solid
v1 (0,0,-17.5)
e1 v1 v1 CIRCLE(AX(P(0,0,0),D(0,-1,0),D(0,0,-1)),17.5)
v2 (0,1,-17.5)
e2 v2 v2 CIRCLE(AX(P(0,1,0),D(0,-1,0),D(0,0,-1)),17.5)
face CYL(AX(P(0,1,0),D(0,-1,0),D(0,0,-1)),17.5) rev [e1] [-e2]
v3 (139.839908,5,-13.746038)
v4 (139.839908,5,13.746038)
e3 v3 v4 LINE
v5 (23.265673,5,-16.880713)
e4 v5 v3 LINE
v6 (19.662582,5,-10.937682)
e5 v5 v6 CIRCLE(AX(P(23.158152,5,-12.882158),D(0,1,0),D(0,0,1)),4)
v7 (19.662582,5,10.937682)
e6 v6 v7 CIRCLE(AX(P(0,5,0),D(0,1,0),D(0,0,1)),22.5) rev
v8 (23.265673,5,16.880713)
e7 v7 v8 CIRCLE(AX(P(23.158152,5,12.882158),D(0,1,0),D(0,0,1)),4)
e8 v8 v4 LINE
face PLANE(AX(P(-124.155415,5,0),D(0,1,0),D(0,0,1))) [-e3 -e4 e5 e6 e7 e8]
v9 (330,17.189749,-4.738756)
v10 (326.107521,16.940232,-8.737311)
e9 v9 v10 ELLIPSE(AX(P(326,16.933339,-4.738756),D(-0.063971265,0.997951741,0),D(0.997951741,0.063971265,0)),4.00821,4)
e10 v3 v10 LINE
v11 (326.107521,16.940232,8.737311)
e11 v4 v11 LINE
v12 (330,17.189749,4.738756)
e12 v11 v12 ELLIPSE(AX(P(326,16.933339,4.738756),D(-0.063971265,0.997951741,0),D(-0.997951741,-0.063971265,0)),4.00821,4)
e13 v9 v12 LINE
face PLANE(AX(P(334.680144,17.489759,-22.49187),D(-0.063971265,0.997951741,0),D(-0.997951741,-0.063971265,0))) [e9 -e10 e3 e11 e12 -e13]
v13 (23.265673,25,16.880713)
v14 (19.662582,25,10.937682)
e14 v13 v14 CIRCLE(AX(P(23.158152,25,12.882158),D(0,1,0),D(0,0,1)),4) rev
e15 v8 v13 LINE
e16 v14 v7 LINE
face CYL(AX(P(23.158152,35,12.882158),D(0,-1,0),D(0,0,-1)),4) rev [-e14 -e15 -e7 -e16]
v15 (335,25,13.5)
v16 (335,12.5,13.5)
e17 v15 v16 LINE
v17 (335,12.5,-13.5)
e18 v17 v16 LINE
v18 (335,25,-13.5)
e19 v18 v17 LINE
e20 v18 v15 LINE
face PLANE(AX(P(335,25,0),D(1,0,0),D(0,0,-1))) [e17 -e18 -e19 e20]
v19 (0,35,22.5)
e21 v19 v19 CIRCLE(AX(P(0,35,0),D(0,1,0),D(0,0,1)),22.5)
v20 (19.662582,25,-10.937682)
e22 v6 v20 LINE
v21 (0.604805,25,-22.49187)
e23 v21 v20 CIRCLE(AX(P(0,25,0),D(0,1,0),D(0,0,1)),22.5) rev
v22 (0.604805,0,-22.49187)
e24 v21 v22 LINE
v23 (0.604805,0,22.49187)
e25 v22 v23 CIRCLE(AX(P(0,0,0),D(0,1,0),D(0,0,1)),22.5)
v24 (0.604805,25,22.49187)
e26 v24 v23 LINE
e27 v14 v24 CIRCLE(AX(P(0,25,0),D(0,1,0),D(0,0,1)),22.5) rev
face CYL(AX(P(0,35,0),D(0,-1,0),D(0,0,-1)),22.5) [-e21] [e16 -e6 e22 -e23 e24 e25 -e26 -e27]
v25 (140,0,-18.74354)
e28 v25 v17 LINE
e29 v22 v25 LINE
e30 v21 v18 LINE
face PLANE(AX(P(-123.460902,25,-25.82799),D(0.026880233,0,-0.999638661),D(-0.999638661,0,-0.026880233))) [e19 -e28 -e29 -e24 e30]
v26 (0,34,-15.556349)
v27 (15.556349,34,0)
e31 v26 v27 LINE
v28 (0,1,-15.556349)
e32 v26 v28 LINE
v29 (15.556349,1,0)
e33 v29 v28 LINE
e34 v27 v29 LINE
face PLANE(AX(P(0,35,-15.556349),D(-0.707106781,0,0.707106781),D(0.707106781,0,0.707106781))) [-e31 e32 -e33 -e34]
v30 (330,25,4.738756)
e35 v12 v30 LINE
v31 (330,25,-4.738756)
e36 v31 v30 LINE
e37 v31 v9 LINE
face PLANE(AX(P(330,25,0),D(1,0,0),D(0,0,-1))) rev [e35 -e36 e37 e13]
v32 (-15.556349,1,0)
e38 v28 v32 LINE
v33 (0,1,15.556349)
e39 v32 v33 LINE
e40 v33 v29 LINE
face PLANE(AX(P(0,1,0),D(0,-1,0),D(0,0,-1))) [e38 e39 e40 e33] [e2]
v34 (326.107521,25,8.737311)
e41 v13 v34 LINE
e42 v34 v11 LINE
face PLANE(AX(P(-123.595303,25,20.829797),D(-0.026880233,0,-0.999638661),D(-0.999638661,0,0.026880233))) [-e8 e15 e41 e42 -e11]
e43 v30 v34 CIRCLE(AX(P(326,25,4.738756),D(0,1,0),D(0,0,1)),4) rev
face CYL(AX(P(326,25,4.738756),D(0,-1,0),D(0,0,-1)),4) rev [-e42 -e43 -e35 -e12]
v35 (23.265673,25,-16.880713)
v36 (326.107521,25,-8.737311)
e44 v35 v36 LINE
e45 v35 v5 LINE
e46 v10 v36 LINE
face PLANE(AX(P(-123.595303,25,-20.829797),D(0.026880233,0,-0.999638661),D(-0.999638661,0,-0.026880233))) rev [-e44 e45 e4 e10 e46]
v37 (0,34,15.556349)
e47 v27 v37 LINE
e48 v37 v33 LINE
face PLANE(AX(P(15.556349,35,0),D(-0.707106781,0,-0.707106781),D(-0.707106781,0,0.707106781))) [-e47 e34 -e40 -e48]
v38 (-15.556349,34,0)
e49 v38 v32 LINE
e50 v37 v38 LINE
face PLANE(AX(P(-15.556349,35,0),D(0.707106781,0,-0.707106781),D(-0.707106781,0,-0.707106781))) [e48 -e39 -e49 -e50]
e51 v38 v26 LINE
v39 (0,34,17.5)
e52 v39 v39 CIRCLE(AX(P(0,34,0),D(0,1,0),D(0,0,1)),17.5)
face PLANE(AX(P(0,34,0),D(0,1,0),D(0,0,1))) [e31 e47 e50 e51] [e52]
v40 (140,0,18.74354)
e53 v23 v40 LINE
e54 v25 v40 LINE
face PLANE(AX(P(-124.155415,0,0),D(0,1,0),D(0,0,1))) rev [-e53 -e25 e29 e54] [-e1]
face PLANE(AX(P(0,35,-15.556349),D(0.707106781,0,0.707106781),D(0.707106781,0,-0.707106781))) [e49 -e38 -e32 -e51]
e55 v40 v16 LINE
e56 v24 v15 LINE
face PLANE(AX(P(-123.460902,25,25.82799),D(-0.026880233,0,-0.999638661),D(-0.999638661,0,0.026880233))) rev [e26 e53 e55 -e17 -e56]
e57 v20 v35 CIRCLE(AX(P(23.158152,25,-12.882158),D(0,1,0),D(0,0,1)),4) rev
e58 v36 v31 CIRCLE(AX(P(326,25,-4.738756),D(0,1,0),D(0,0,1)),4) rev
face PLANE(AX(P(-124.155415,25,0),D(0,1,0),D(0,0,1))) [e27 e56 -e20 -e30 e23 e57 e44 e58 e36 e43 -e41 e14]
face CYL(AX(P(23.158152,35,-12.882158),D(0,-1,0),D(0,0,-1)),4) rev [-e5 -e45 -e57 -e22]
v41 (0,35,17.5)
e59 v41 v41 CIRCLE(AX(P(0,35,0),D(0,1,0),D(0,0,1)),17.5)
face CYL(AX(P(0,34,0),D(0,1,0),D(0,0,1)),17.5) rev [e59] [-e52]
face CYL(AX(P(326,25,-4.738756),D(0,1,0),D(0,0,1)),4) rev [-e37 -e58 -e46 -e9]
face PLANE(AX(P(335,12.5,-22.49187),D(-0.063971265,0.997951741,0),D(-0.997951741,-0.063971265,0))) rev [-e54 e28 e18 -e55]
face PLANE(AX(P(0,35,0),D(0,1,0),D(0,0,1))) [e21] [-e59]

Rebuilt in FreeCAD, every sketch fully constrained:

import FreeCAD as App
import Part
import Sketcher


def edges_at(feature, points):
    """Names of the edges that pass closest to the given points."""
    edges = feature.Shape.Edges
    near = lambda p: min(range(len(edges)), key=lambda i: edges[i].distToShape(Part.Vertex(*p))[0])
    return sorted({f"Edge{near(p) + 1}" for p in points})


def faces_at(feature, points):
    """Names of the faces that lie closest to the given points."""
    faces = feature.Shape.Faces
    near = lambda p: min(range(len(faces)), key=lambda i: faces[i].distToShape(Part.Vertex(*p))[0])
    return sorted({f"Face{near(p) + 1}" for p in points})

doc = App.newDocument("Part")
params = doc.addObject("Spreadsheet::Sheet", "Params")
for row, (alias, value) in enumerate([
    ("sketch1_height", "27 mm"),
    ("pad1_length", "25 mm"),
    ("thickness_wall", "5 mm"),
    ("sketch3_diameter", "45 mm"),
    ("pad2_length", "35 mm"),
    ("sketch4_diameter", "35 mm"),
    ("pocket2_length", "1 mm"),
    ("sketch5_diameter", "35 mm"),
    ("pocket3_length", "1 mm"),
    ("sketch6_length", "22 mm"),
    ("fillet_radius", "4 mm"),
], start=1):
    params.set(f"A{row}", alias)
    params.set(f"B{row}", "=" + value)
    params.setAlias(f"B{row}", alias)

body = doc.addObject("PartDesign::Body", "Body")

sketch1 = body.newObject("Sketcher::SketchObject", "Sketch")
sketch1.AttachmentSupport = (doc.getObject("XZ_Plane"), [""])
sketch1.MapMode = "FlatFace"
sketch1.addGeometry(Part.LineSegment(App.Vector(335, -13.5, 0), App.Vector(0.604805, -22.49187, 0)), False)
sketch1.addGeometry(Part.LineSegment(App.Vector(0.604805, -22.49187, 0), App.Vector(0.604805, 22.49187, 0)), False)
sketch1.addGeometry(Part.LineSegment(App.Vector(0.604805, 22.49187, 0), App.Vector(335, 13.5, 0)), False)
sketch1.addGeometry(Part.LineSegment(App.Vector(335, 13.5, 0), App.Vector(335, -13.5, 0)), False)
sketch1.addConstraint(Sketcher.Constraint("Coincident", 0, 2, 1, 1))
sketch1.addConstraint(Sketcher.Constraint("Coincident", 1, 2, 2, 1))
sketch1.addConstraint(Sketcher.Constraint("Coincident", 2, 2, 3, 1))
sketch1.addConstraint(Sketcher.Constraint("Coincident", 3, 2, 0, 1))
sketch1.addConstraint(Sketcher.Constraint("Vertical", 1))
sketch1.addConstraint(Sketcher.Constraint("Vertical", 3))
sketch1.addConstraint(Sketcher.Constraint("Equal", 0, 2))
sketch1.addConstraint(Sketcher.Constraint("DistanceY", 3, 2, 3, 1, 27.0))
sketch1.addConstraint(Sketcher.Constraint("DistanceX", -1, 1, 2, 2, 335.0))
sketch1.addConstraint(Sketcher.Constraint("DistanceY", -1, 1, 2, 2, 13.5))
sketch1.addConstraint(Sketcher.Constraint("DistanceY", 1, 1, 1, 2, 44.98374))
sketch1.addConstraint(Sketcher.Constraint("Distance", 0, 334.516068))
sketch1.setExpression("Constraints[7]", "Params.sketch1_height")
pad1 = body.newObject("PartDesign::Pad", "Pad")
pad1.Profile = sketch1
pad1.setExpression("Length", "Params.pad1_length")
pad1.Reversed = True

sketch2 = body.newObject("Sketcher::SketchObject", "Sketch001")
sketch2.AttachmentSupport = (doc.getObject("XY_Plane"), [""])
sketch2.MapMode = "FlatFace"
sketch2.addGeometry(Part.LineSegment(App.Vector(335, 12.5, 0), App.Vector(140, 0, 0)), False)
sketch2.addGeometry(Part.LineSegment(App.Vector(140, 0, 0), App.Vector(140, -74.146668, 0)), False)
sketch2.addGeometry(Part.LineSegment(App.Vector(140, -74.146668, 0), App.Vector(362.466185, -74.146668, 0)), False)
sketch2.addGeometry(Part.LineSegment(App.Vector(362.466185, -74.146668, 0), App.Vector(356.911911, 12.5, 0)), False)
sketch2.addGeometry(Part.LineSegment(App.Vector(356.911911, 12.5, 0), App.Vector(335, 12.5, 0)), False)
sketch2.addConstraint(Sketcher.Constraint("Coincident", 0, 2, 1, 1))
sketch2.addConstraint(Sketcher.Constraint("Coincident", 1, 2, 2, 1))
sketch2.addConstraint(Sketcher.Constraint("Coincident", 2, 2, 3, 1))
sketch2.addConstraint(Sketcher.Constraint("Coincident", 3, 2, 4, 1))
sketch2.addConstraint(Sketcher.Constraint("Coincident", 4, 2, 0, 1))
sketch2.addConstraint(Sketcher.Constraint("Vertical", 1))
sketch2.addConstraint(Sketcher.Constraint("Horizontal", 2))
sketch2.addConstraint(Sketcher.Constraint("Horizontal", 4))
sketch2.addConstraint(Sketcher.Constraint("PointOnObject", 0, 2, -1))
sketch2.addConstraint(Sketcher.Constraint("Perpendicular", 0, 3))
sketch2.addConstraint(Sketcher.Constraint("DistanceX", -1, 1, 0, 2, 140.0))
sketch2.addConstraint(Sketcher.Constraint("DistanceX", -1, 1, 4, 2, 335.0))
sketch2.addConstraint(Sketcher.Constraint("DistanceY", -1, 1, 3, 2, 12.5))
sketch2.addConstraint(Sketcher.Constraint("DistanceX", 4, 2, 4, 1, 21.911911))
sketch2.addConstraint(Sketcher.Constraint("DistanceY", 1, 2, 1, 1, 74.146668))
pocket1 = body.newObject("PartDesign::Pocket", "Pocket")
pocket1.Profile = sketch2
pocket1.Type = "ThroughAll"
pocket1.Midplane = True
doc.recompute()

thickness = body.newObject("PartDesign::Thickness", "Thickness")
thickness.Base = (pocket1, faces_at(pocket1, [(167.802, 25, 0), (0.605, 12.5, 0)]))
thickness.setExpression("Value", "Params.thickness_wall")
thickness.Reversed = True
thickness.Join = "Intersection"

sketch3 = body.newObject("Sketcher::SketchObject", "Sketch002")
sketch3.AttachmentSupport = (doc.getObject("XZ_Plane"), [""])
sketch3.MapMode = "FlatFace"
sketch3.addGeometry(Part.Circle(App.Vector(0, 0, 0), App.Vector(0, 0, 1), 22.5), False)
sketch3.addConstraint(Sketcher.Constraint("Coincident", 0, 3, -1, 1))
sketch3.addConstraint(Sketcher.Constraint("Diameter", 0, 45.0))
sketch3.setExpression("Constraints[1]", "Params.sketch3_diameter")
pad2 = body.newObject("PartDesign::Pad", "Pad001")
pad2.Profile = sketch3
pad2.setExpression("Length", "Params.pad2_length")
pad2.Reversed = True

sketch4 = body.newObject("Sketcher::SketchObject", "Sketch003")
sketch4.AttachmentSupport = (doc.getObject("XZ_Plane"), [""])
sketch4.MapMode = "FlatFace"
sketch4.AttachmentOffset = App.Placement(App.Vector(0, 0, -35), App.Rotation())
sketch4.addGeometry(Part.Circle(App.Vector(0, 0, 0), App.Vector(0, 0, 1), 17.5), False)
sketch4.addConstraint(Sketcher.Constraint("Coincident", 0, 3, -1, 1))
sketch4.addConstraint(Sketcher.Constraint("Diameter", 0, 35.0))
sketch4.setExpression("Constraints[1]", "Params.sketch4_diameter")
pocket2 = body.newObject("PartDesign::Pocket", "Pocket001")
pocket2.Profile = sketch4
pocket2.setExpression("Length", "Params.pocket2_length")
pocket2.Reversed = True

sketch5 = body.newObject("Sketcher::SketchObject", "Sketch004")
sketch5.AttachmentSupport = (doc.getObject("XZ_Plane"), [""])
sketch5.MapMode = "FlatFace"
sketch5.AttachmentOffset = App.Placement(App.Vector(0, 0, -1), App.Rotation())
sketch5.addGeometry(Part.Circle(App.Vector(0, 0, 0), App.Vector(0, 0, 1), 17.5), False)
sketch5.addConstraint(Sketcher.Constraint("Coincident", 0, 3, -1, 1))
sketch5.addConstraint(Sketcher.Constraint("Diameter", 0, 35.0))
sketch5.setExpression("Constraints[1]", "Params.sketch5_diameter")
pocket3 = body.newObject("PartDesign::Pocket", "Pocket002")
pocket3.Profile = sketch5
pocket3.setExpression("Length", "Params.pocket3_length")
pocket3.Reversed = True

sketch6 = body.newObject("Sketcher::SketchObject", "Sketch005")
sketch6.AttachmentSupport = (doc.getObject("XZ_Plane"), [""])
sketch6.MapMode = "FlatFace"
sketch6.AttachmentOffset = App.Placement(App.Vector(0, 0, -1), App.Rotation())
sketch6.addGeometry(Part.LineSegment(App.Vector(0, -15.556349, 0), App.Vector(-15.556349, 0, 0)), False)
sketch6.addGeometry(Part.LineSegment(App.Vector(-15.556349, 0, 0), App.Vector(0, 15.556349, 0)), False)
sketch6.addGeometry(Part.LineSegment(App.Vector(0, 15.556349, 0), App.Vector(15.556349, 0, 0)), False)
sketch6.addGeometry(Part.LineSegment(App.Vector(15.556349, 0, 0), App.Vector(0, -15.556349, 0)), False)
sketch6.addConstraint(Sketcher.Constraint("Coincident", 0, 2, 1, 1))
sketch6.addConstraint(Sketcher.Constraint("Coincident", 1, 2, 2, 1))
sketch6.addConstraint(Sketcher.Constraint("Coincident", 2, 2, 3, 1))
sketch6.addConstraint(Sketcher.Constraint("Coincident", 3, 2, 0, 1))
sketch6.addConstraint(Sketcher.Constraint("Symmetric", 0, 2, 2, 2, -1, 1))
sketch6.addConstraint(Sketcher.Constraint("Symmetric", 1, 2, 3, 2, -1, 1))
sketch6.addConstraint(Sketcher.Constraint("PointOnObject", 0, 2, -1))
sketch6.addConstraint(Sketcher.Constraint("PointOnObject", 1, 2, -2))
sketch6.addConstraint(Sketcher.Constraint("Perpendicular", 0, 1))
sketch6.addConstraint(Sketcher.Constraint("Distance", 0, 22.0))
sketch6.setExpression("Constraints[9]", "Params.sketch6_length")
pocket4 = body.newObject("PartDesign::Pocket", "Pocket003")
pocket4.Profile = sketch6
pocket4.Type = "ThroughAll"
doc.recompute()

fillet = body.newObject("PartDesign::Fillet", "Fillet")
fillet.Base = (pocket4, edges_at(pocket4, [
    (330, 21.095, 8.633),
    (330, 21.095, -8.633),
    (14.607, 15, -17.114),
    (14.607, 15, 17.114),
]))
fillet.setExpression("Radius", "Params.fillet_radius")

doc.recompute()
